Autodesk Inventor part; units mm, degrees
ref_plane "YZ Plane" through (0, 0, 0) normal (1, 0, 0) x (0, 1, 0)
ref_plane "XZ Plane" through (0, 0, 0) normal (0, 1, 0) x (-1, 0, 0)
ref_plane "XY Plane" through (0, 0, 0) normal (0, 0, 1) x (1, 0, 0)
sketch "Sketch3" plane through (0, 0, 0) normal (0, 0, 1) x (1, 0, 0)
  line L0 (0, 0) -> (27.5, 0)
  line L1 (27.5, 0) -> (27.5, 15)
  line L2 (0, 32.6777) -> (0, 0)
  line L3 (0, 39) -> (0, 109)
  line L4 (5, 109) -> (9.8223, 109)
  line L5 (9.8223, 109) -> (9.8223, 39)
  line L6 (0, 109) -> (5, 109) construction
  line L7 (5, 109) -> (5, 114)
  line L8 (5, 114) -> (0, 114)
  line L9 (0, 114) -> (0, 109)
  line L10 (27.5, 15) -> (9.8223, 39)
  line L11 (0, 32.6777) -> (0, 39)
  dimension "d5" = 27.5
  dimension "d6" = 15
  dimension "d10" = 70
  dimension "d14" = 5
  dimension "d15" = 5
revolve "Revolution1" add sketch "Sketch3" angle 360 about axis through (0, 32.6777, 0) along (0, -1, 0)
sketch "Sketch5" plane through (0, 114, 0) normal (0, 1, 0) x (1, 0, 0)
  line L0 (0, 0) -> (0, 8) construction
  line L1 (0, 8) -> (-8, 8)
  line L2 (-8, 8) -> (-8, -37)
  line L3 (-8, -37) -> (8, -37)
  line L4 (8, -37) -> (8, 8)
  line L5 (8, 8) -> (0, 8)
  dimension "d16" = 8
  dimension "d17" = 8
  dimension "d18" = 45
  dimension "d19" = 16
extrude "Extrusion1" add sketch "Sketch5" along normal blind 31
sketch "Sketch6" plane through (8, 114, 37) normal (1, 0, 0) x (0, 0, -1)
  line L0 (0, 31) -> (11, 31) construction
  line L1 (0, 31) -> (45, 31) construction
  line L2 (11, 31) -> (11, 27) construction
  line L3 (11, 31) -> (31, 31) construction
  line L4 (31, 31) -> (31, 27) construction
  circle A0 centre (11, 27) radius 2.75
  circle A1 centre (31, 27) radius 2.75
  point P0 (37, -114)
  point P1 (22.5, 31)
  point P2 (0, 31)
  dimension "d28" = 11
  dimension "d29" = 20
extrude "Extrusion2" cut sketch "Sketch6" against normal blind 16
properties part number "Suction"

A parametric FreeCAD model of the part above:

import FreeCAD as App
import Part
import Sketcher
Q = App.Units.Quantity


def add_polygon(sketch, points):
    """Adds a closed chain of lines whose ends are joined by coincident constraints."""
    first, n = sketch.GeometryCount, len(points)
    for a, b in zip(points, points[1:] + points[:1]):
        sketch.addGeometry(Part.LineSegment(App.Vector(*a, 0), App.Vector(*b, 0)), False)
    for i in range(n):
        sketch.addConstraint(Sketcher.Constraint("Coincident", first + i, 2, first + (i + 1) % n, 1))

doc = App.newDocument("Part")
params = doc.addObject("Spreadsheet::Sheet", "Params")
for row, (alias, value) in enumerate([
    ("sketch1_width", "5 mm"),
    ("sketch1_height", "15 mm"),
    ("sketch1_height2", "70 mm"),
    ("sketch1_width2", "27.5 mm"),
    ("sketch1_height3", "114 mm"),
    ("revolution_angle", "360 deg"),
    ("sketch2_width", "16 mm"),
    ("sketch2_height", "45 mm"),
    ("pad1_length", "31 mm"),
    ("sketch3_diameter", "5.5 mm"),
    ("pocket1_length", "16 mm"),
], start=1):
    params.set(f"A{row}", alias)
    params.set(f"B{row}", "=" + value)
    params.setAlias(f"B{row}", alias)

body = doc.addObject("PartDesign::Body", "Body")

sketch1 = doc.addObject("Sketcher::SketchObject", "Sketch")
body.addObject(sketch1)
sketch1.AttachmentSupport = (doc.XY_Plane, [""])
sketch1.MapMode = "FlatFace"
add_polygon(sketch1, [(0, 114), (0, 0), (27.5, 0), (27.5, 15), (9.8223, 39), (9.8223, 109), (5, 109), (5, 114)])
sketch1.addConstraint([
    Sketcher.Constraint("Vertical", 0),
    Sketcher.Constraint("Horizontal", 1),
    Sketcher.Constraint("Vertical", 2),
    Sketcher.Constraint("Vertical", 4),
    Sketcher.Constraint("Horizontal", 5),
    Sketcher.Constraint("Vertical", 6),
    Sketcher.Constraint("Horizontal", 7),
    Sketcher.Constraint("Coincident", 0, 2, -1, 1),
    Sketcher.Constraint("Equal", 7, 6),
    Sketcher.Constraint("DistanceX", 7, 2, 7, 1, Q("5 mm")),
    Sketcher.Constraint("DistanceY", 2, 1, 2, 2, Q("15 mm")),
    Sketcher.Constraint("DistanceY", 4, 1, 4, 2, Q("70 mm")),
    Sketcher.Constraint("DistanceX", 1, 1, 1, 2, Q("27.5 mm")),
    Sketcher.Constraint("DistanceY", 0, 2, 0, 1, Q("114 mm")),
    Sketcher.Constraint("DistanceX", 5, 2, 5, 1, Q("4.8223 mm")),
])
sketch1.setExpression("Constraints[17]", "Params.sketch1_width")
sketch1.setExpression("Constraints[18]", "Params.sketch1_height")
sketch1.setExpression("Constraints[19]", "Params.sketch1_height2")
sketch1.setExpression("Constraints[20]", "Params.sketch1_width2")
sketch1.setExpression("Constraints[21]", "Params.sketch1_height3")
revolution = doc.addObject("PartDesign::Revolution", "Revolution")
body.addObject(revolution)
revolution.Profile = sketch1
revolution.ReferenceAxis = (sketch1, ["V_Axis"])
revolution.setExpression("Angle", "Params.revolution_angle")

sketch2 = doc.addObject("Sketcher::SketchObject", "Sketch001")
body.addObject(sketch2)
sketch2.AttachmentSupport = (doc.XZ_Plane, [""])
sketch2.MapMode = "FlatFace"
sketch2.AttachmentOffset = App.Placement(App.Vector(0, 0, -114), App.Rotation())
add_polygon(sketch2, [(8, -8), (-8, -8), (-8, 37), (8, 37)])
sketch2.addConstraint([
    Sketcher.Constraint("Horizontal", 0),
    Sketcher.Constraint("Vertical", 1),
    Sketcher.Constraint("Horizontal", 2),
    Sketcher.Constraint("Vertical", 3),
    Sketcher.Constraint("DistanceX", 0, 2, 0, 1, Q("16 mm")),
    Sketcher.Constraint("DistanceY", 1, 1, 1, 2, Q("45 mm")),
    Sketcher.Constraint("DistanceX", 0, 2, -1, 1, Q("8 mm")),
    Sketcher.Constraint("DistanceY", 0, 2, -1, 1, Q("8 mm")),
])
sketch2.setExpression("Constraints[8]", "Params.sketch2_width")
sketch2.setExpression("Constraints[9]", "Params.sketch2_height")
pad1 = doc.addObject("PartDesign::Pad", "Pad")
body.addObject(pad1)
pad1.Profile = sketch2
pad1.setExpression("Length", "Params.pad1_length")
pad1.Reversed = True

sketch3 = doc.addObject("Sketcher::SketchObject", "Sketch002")
body.addObject(sketch3)
sketch3.AttachmentSupport = (doc.YZ_Plane, [""])
sketch3.MapMode = "FlatFace"
sketch3.AttachmentOffset = App.Placement(App.Vector(0, 0, 8), App.Rotation())
sketch3.addGeometry([
    Part.Circle(App.Vector(141, 26, 0), App.Vector(0, 0, 1), 2.75),
    Part.Circle(App.Vector(141, 6, 0), App.Vector(0, 0, 1), 2.75),
], False)
sketch3.addConstraint([
    Sketcher.Constraint("Equal", 0, 1),
    Sketcher.Constraint("Vertical", 0, 3, 1, 3),
    Sketcher.Constraint("DistanceY", 1, 3, 0, 3, Q("20 mm")),
    Sketcher.Constraint("Diameter", 0, Q("5.5 mm")),
    Sketcher.Constraint("DistanceX", -1, 1, 0, 3, Q("141 mm")),
    Sketcher.Constraint("DistanceY", -1, 1, 0, 3, Q("26 mm")),
])
sketch3.setExpression("Constraints[3]", "Params.sketch3_diameter")
pocket1 = doc.addObject("PartDesign::Pocket", "Pocket")
body.addObject(pocket1)
pocket1.Profile = sketch3
pocket1.setExpression("Length", "Params.pocket1_length")

doc.recompute()
